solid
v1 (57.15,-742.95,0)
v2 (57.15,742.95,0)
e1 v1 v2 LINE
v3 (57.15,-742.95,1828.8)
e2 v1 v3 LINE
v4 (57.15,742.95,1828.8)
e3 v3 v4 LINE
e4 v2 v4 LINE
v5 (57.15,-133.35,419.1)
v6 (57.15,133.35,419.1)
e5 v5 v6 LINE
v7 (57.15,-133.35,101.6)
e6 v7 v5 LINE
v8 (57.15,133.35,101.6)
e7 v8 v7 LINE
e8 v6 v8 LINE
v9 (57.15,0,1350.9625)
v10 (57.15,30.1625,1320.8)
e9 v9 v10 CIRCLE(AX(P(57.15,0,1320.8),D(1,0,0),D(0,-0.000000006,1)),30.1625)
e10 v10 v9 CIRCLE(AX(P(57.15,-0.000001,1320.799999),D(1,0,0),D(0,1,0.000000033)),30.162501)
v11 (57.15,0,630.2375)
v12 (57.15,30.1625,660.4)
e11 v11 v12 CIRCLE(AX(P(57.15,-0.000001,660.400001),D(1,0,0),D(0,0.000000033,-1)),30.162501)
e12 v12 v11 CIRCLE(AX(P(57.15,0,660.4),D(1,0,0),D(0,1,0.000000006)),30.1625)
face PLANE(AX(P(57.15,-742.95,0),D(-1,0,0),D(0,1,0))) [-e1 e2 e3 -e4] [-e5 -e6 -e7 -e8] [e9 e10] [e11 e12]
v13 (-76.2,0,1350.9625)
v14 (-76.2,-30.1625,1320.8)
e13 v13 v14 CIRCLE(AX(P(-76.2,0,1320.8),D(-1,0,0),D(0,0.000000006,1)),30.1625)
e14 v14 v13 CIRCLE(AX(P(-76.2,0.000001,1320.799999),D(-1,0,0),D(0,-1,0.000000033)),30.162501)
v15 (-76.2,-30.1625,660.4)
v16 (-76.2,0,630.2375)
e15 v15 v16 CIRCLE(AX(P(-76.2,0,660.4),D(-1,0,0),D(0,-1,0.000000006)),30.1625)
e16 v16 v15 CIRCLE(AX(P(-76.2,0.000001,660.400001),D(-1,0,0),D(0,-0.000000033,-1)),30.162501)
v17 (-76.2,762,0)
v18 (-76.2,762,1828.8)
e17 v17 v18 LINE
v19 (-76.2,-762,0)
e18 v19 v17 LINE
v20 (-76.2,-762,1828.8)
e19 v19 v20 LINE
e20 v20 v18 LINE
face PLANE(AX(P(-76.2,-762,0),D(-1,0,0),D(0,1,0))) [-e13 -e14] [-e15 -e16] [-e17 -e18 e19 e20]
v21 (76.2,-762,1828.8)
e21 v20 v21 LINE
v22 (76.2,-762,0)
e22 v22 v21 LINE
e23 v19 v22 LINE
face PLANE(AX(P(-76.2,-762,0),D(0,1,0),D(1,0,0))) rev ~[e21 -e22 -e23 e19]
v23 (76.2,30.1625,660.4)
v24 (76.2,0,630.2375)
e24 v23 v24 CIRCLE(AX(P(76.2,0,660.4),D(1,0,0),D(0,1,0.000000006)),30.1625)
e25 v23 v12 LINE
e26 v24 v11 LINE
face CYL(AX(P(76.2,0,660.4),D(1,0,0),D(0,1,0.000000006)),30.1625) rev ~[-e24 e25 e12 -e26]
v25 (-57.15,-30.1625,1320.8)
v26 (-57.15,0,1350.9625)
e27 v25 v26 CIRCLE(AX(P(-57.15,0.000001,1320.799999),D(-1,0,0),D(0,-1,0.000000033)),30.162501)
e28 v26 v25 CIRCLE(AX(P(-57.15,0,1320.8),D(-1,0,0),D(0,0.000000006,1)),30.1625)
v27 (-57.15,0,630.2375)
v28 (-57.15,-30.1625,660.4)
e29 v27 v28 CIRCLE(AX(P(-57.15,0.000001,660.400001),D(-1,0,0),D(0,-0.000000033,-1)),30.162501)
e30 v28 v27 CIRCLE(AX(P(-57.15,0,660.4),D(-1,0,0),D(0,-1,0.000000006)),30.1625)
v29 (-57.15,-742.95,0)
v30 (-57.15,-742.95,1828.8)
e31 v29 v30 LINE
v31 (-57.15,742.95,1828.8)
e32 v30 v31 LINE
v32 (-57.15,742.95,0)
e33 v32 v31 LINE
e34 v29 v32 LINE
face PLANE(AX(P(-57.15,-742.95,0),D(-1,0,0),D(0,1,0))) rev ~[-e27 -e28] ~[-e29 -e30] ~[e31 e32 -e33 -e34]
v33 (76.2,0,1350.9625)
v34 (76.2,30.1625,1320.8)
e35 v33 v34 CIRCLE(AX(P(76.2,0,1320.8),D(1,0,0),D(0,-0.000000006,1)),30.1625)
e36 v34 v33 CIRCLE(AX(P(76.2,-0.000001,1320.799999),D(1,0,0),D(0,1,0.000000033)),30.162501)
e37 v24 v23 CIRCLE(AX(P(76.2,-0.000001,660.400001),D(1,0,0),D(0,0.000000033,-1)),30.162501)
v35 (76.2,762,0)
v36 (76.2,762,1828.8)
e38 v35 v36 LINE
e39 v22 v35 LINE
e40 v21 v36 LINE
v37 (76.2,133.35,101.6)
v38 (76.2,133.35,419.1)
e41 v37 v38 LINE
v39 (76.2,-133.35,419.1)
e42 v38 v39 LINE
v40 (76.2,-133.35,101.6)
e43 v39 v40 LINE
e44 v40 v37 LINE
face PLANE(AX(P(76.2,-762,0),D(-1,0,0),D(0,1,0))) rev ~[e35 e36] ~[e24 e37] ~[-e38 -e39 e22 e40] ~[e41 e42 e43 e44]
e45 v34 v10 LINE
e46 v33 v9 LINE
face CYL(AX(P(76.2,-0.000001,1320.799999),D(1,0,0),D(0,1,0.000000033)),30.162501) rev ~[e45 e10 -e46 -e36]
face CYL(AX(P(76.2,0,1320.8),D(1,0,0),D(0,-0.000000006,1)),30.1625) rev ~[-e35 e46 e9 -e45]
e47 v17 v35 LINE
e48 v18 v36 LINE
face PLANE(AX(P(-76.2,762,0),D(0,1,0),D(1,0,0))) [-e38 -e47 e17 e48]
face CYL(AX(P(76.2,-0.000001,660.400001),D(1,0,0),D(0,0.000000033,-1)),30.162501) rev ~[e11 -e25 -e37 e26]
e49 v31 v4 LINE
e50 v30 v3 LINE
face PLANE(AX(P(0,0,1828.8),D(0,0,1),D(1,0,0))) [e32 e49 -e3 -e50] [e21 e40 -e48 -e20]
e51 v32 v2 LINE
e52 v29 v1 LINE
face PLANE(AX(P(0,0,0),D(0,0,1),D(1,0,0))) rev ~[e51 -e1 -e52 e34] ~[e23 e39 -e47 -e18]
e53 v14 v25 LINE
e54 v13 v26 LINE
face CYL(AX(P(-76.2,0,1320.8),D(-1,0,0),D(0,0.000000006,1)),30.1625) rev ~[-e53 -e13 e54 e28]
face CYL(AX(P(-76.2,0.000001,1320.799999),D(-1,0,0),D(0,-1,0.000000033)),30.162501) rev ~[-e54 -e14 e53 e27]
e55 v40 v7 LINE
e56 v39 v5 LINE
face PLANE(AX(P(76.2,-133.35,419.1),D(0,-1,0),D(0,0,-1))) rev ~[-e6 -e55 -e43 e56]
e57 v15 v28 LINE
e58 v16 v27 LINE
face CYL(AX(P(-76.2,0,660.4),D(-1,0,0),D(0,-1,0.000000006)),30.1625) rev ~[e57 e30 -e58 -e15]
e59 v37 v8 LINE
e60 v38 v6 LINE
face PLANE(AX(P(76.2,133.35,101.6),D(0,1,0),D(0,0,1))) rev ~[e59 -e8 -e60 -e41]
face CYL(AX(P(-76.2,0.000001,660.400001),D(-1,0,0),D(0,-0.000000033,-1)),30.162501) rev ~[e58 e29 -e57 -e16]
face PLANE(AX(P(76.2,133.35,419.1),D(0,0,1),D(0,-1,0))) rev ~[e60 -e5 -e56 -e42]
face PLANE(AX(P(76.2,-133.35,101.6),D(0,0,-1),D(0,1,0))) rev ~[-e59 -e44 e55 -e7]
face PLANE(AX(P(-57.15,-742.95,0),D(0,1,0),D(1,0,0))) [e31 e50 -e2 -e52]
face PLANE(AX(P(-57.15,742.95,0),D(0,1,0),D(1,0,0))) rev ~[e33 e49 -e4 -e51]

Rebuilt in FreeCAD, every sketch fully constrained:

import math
import FreeCAD as App
import Part
import Sketcher
from FreeCAD import Vector
Q = App.Units.Quantity

doc = App.newDocument("Part")
params = doc.addObject("Spreadsheet::Sheet", "Params")
for row, (alias, value) in enumerate([
    ("sketch1_width", "6 in"),
    ("sketch1_height", "60 in"),
    ("sketch1_width2", "4.5 in"),
    ("sketch1_height2", "58.5 in"),
    ("pad1_length", "72 in"),
    ("sketch2_width", "10.5 in"),
    ("sketch2_height", "12.5 in"),
    ("sketch2_radius", "1.1875 in"),
    ("pocket1_length", "1 in"),
    ("sketch3_radius", "1.1875 in"),
    ("pocket2_length", "1 in"),
], start=1):
    params.set(f"A{row}", alias)
    params.set(f"B{row}", "=" + value)
    params.setAlias(f"B{row}", alias)

body = doc.addObject("PartDesign::Body", "Body")

# Sketch on XY plane
sketch1 = body.newObject("Sketcher::SketchObject", "Sketch")
sketch1.AttachmentSupport = (doc.getObject("XY_Plane"), [""])
sketch1.MapMode = "FlatFace"
sketch1.addGeometry(Part.LineSegment(Vector(-76.2, 762, 0), Vector(-76.2, -762, 0)), False)
sketch1.addGeometry(Part.LineSegment(Vector(-76.2, -762, 0), Vector(76.2, -762, 0)), False)
sketch1.addGeometry(Part.LineSegment(Vector(76.2, -762, 0), Vector(76.2, 762, 0)), False)
sketch1.addGeometry(Part.LineSegment(Vector(76.2, 762, 0), Vector(-76.2, 762, 0)), False)
sketch1.addGeometry(Part.LineSegment(Vector(57.15, -742.95, 0), Vector(-57.15, -742.95, 0)), False)
sketch1.addGeometry(Part.LineSegment(Vector(-57.15, -742.95, 0), Vector(-57.15, 742.95, 0)), False)
sketch1.addGeometry(Part.LineSegment(Vector(-57.15, 742.95, 0), Vector(57.15, 742.95, 0)), False)
sketch1.addGeometry(Part.LineSegment(Vector(57.15, 742.95, 0), Vector(57.15, -742.95, 0)), False)
sketch1.addConstraint(Sketcher.Constraint("Coincident", 0, 2, 1, 1))
sketch1.addConstraint(Sketcher.Constraint("Coincident", 1, 2, 2, 1))
sketch1.addConstraint(Sketcher.Constraint("Coincident", 2, 2, 3, 1))
sketch1.addConstraint(Sketcher.Constraint("Coincident", 3, 2, 0, 1))
sketch1.addConstraint(Sketcher.Constraint("Coincident", 4, 2, 5, 1))
sketch1.addConstraint(Sketcher.Constraint("Coincident", 5, 2, 6, 1))
sketch1.addConstraint(Sketcher.Constraint("Coincident", 6, 2, 7, 1))
sketch1.addConstraint(Sketcher.Constraint("Coincident", 7, 2, 4, 1))
sketch1.addConstraint(Sketcher.Constraint("Vertical", 0))
sketch1.addConstraint(Sketcher.Constraint("Horizontal", 1))
sketch1.addConstraint(Sketcher.Constraint("Vertical", 2))
sketch1.addConstraint(Sketcher.Constraint("Horizontal", 3))
sketch1.addConstraint(Sketcher.Constraint("Horizontal", 4))
sketch1.addConstraint(Sketcher.Constraint("Vertical", 5))
sketch1.addConstraint(Sketcher.Constraint("Horizontal", 6))
sketch1.addConstraint(Sketcher.Constraint("Vertical", 7))
sketch1.addConstraint(Sketcher.Constraint("Symmetric", 0, 2, 2, 2, -1, 1))
sketch1.addConstraint(Sketcher.Constraint("Symmetric", 4, 2, 6, 2, -1, 1))
sketch1.addConstraint(Sketcher.Constraint("DistanceX", 1, 1, 1, 2, Q("6 in")))
sketch1.addConstraint(Sketcher.Constraint("DistanceY", 0, 2, 0, 1, Q("60 in")))
sketch1.addConstraint(Sketcher.Constraint("DistanceX", 4, 2, 4, 1, Q("4.5 in")))
sketch1.addConstraint(Sketcher.Constraint("DistanceY", 5, 1, 5, 2, Q("58.5 in")))
sketch1.setExpression("Constraints[18]", "Params.sketch1_width")
sketch1.setExpression("Constraints[19]", "Params.sketch1_height")
sketch1.setExpression("Constraints[20]", "Params.sketch1_width2")
sketch1.setExpression("Constraints[21]", "Params.sketch1_height2")
pad1 = body.newObject("PartDesign::Pad", "Pad")
pad1.Profile = sketch1
pad1.setExpression("Length", "Params.pad1_length")

# Sketch on YZ plane
sketch2 = body.newObject("Sketcher::SketchObject", "Sketch001")
sketch2.AttachmentSupport = (doc.getObject("YZ_Plane"), [""])
sketch2.MapMode = "FlatFace"
sketch2.AttachmentOffset = App.Placement(Vector(0, 0, 3 * 25.4), App.Rotation())
sketch2.addGeometry(Part.LineSegment(Vector(-133.35, 101.6, 0), Vector(133.35, 101.6, 0)), False)
sketch2.addGeometry(Part.LineSegment(Vector(133.35, 101.6, 0), Vector(133.35, 419.1, 0)), False)
sketch2.addGeometry(Part.LineSegment(Vector(133.35, 419.1, 0), Vector(-133.35, 419.1, 0)), False)
sketch2.addGeometry(Part.LineSegment(Vector(-133.35, 419.1, 0), Vector(-133.35, 101.6, 0)), False)
sketch2.addGeometry(Part.ArcOfCircle(Part.Circle(Vector(0, 660.4, 0), Vector(0, 0, 1), 30.1625), math.radians(0), math.radians(270)), False)
sketch2.addGeometry(Part.ArcOfCircle(Part.Circle(Vector(-0.000001, 660.400001, 0), Vector(0, 0, 1), 30.162501), math.radians(-89.999998), math.radians(-0.000002)), False)
sketch2.addGeometry(Part.ArcOfCircle(Part.Circle(Vector(-0.000001, 1320.799999, 0), Vector(0, 0, 1), 30.162501), math.radians(0.000002), math.radians(89.999998)), False)
sketch2.addGeometry(Part.ArcOfCircle(Part.Circle(Vector(0, 1320.8, 0), Vector(0, 0, 1), 30.1625), math.radians(90), math.radians(360)), False)
sketch2.addConstraint(Sketcher.Constraint("Coincident", 0, 2, 1, 1))
sketch2.addConstraint(Sketcher.Constraint("Coincident", 1, 2, 2, 1))
sketch2.addConstraint(Sketcher.Constraint("Coincident", 2, 2, 3, 1))
sketch2.addConstraint(Sketcher.Constraint("Coincident", 3, 2, 0, 1))
sketch2.addConstraint(Sketcher.Constraint("Tangent", 4, 1, 5, 2))
sketch2.addConstraint(Sketcher.Constraint("Coincident", 5, 1, 4, 2))
sketch2.addConstraint(Sketcher.Constraint("Tangent", 6, 1, 7, 2))
sketch2.addConstraint(Sketcher.Constraint("Coincident", 7, 1, 6, 2))
sketch2.addConstraint(Sketcher.Constraint("Horizontal", 0))
sketch2.addConstraint(Sketcher.Constraint("Vertical", 1))
sketch2.addConstraint(Sketcher.Constraint("Horizontal", 2))
sketch2.addConstraint(Sketcher.Constraint("Vertical", 3))
sketch2.addConstraint(Sketcher.Constraint("Equal", 5, 6))
sketch2.addConstraint(Sketcher.Constraint("PointOnObject", 4, 3, -2))
sketch2.addConstraint(Sketcher.Constraint("PointOnObject", 6, 3, -2))
sketch2.addConstraint(Sketcher.Constraint("PointOnObject", 5, 1, -2))
sketch2.addConstraint(Sketcher.Constraint("PointOnObject", 7, 1, -2))
sketch2.addConstraint(Sketcher.Constraint("Horizontal", 5, 3, 4, 1))
sketch2.addConstraint(Sketcher.Constraint("Horizontal", 7, 3, 6, 1))
sketch2.addConstraint(Sketcher.Constraint("DistanceX", 0, 1, 0, 2, Q("10.5 in")))
sketch2.addConstraint(Sketcher.Constraint("DistanceY", 1, 1, 1, 2, Q("12.5 in")))
sketch2.addConstraint(Sketcher.Constraint("DistanceY", -1, 1, 4, 3, Q("26 in")))
sketch2.addConstraint(Sketcher.Constraint("DistanceY", -1, 1, 6, 3, Q("52 in")))
sketch2.addConstraint(Sketcher.Constraint("DistanceY", -1, 1, 0, 2, Q("4 in")))
sketch2.addConstraint(Sketcher.Constraint("Radius", 4, Q("1.1875 in")))
sketch2.addConstraint(Sketcher.Constraint("DistanceX", -1, 1, 0, 2, Q("5.25 in")))
sketch2.setExpression("Constraints[19]", "Params.sketch2_width")
sketch2.setExpression("Constraints[20]", "Params.sketch2_height")
sketch2.setExpression("Constraints[24]", "Params.sketch2_radius")
pocket1 = body.newObject("PartDesign::Pocket", "Pocket")
pocket1.Profile = sketch2
pocket1.setExpression("Length", "Params.pocket1_length")

# Sketch on YZ plane
sketch3 = body.newObject("Sketcher::SketchObject", "Sketch002")
sketch3.AttachmentSupport = (doc.getObject("YZ_Plane"), [""])
sketch3.MapMode = "FlatFace"
sketch3.AttachmentOffset = App.Placement(Vector(0, 0, -3 * 25.4), App.Rotation())
sketch3.addGeometry(Part.ArcOfCircle(Part.Circle(Vector(0.000001, 1320.799999, 0), Vector(0, 0, 1), 30.162501), math.radians(90.000002), math.radians(179.999998)), False)
sketch3.addGeometry(Part.ArcOfCircle(Part.Circle(Vector(0, 1320.8, 0), Vector(0, 0, 1), 30.1625), math.radians(-180), math.radians(90)), False)
sketch3.addGeometry(Part.ArcOfCircle(Part.Circle(Vector(0, 660.4, 0), Vector(0, 0, 1), 30.1625), math.radians(-90), math.radians(180)), False)
sketch3.addGeometry(Part.ArcOfCircle(Part.Circle(Vector(0.000001, 660.400001, 0), Vector(0, 0, 1), 30.162501), math.radians(-179.999998), math.radians(-90.000002)), False)
sketch3.addConstraint(Sketcher.Constraint("Tangent", 0, 1, 1, 2))
sketch3.addConstraint(Sketcher.Constraint("Coincident", 1, 1, 0, 2))
sketch3.addConstraint(Sketcher.Constraint("Tangent", 2, 1, 3, 2))
sketch3.addConstraint(Sketcher.Constraint("Coincident", 3, 1, 2, 2))
sketch3.addConstraint(Sketcher.Constraint("Equal", 1, 2))
sketch3.addConstraint(Sketcher.Constraint("PointOnObject", 0, 3, -2))
sketch3.addConstraint(Sketcher.Constraint("PointOnObject", 2, 3, -2))
sketch3.addConstraint(Sketcher.Constraint("PointOnObject", 0, 1, -2))
sketch3.addConstraint(Sketcher.Constraint("PointOnObject", 2, 1, -2))
sketch3.addConstraint(Sketcher.Constraint("Horizontal", 0, 3, 1, 1))
sketch3.addConstraint(Sketcher.Constraint("Horizontal", 2, 3, 3, 1))
sketch3.addConstraint(Sketcher.Constraint("DistanceY", -1, 1, 0, 3, Q("52 in")))
sketch3.addConstraint(Sketcher.Constraint("DistanceY", -1, 1, 2, 3, Q("26 in")))
sketch3.addConstraint(Sketcher.Constraint("Radius", 0, Q("1.1875 in")))
sketch3.setExpression("Constraints[13]", "Params.sketch3_radius")
pocket2 = body.newObject("PartDesign::Pocket", "Pocket001")
pocket2.Profile = sketch3
pocket2.setExpression("Length", "Params.pocket2_length")
pocket2.Reversed = True

doc.recompute()
